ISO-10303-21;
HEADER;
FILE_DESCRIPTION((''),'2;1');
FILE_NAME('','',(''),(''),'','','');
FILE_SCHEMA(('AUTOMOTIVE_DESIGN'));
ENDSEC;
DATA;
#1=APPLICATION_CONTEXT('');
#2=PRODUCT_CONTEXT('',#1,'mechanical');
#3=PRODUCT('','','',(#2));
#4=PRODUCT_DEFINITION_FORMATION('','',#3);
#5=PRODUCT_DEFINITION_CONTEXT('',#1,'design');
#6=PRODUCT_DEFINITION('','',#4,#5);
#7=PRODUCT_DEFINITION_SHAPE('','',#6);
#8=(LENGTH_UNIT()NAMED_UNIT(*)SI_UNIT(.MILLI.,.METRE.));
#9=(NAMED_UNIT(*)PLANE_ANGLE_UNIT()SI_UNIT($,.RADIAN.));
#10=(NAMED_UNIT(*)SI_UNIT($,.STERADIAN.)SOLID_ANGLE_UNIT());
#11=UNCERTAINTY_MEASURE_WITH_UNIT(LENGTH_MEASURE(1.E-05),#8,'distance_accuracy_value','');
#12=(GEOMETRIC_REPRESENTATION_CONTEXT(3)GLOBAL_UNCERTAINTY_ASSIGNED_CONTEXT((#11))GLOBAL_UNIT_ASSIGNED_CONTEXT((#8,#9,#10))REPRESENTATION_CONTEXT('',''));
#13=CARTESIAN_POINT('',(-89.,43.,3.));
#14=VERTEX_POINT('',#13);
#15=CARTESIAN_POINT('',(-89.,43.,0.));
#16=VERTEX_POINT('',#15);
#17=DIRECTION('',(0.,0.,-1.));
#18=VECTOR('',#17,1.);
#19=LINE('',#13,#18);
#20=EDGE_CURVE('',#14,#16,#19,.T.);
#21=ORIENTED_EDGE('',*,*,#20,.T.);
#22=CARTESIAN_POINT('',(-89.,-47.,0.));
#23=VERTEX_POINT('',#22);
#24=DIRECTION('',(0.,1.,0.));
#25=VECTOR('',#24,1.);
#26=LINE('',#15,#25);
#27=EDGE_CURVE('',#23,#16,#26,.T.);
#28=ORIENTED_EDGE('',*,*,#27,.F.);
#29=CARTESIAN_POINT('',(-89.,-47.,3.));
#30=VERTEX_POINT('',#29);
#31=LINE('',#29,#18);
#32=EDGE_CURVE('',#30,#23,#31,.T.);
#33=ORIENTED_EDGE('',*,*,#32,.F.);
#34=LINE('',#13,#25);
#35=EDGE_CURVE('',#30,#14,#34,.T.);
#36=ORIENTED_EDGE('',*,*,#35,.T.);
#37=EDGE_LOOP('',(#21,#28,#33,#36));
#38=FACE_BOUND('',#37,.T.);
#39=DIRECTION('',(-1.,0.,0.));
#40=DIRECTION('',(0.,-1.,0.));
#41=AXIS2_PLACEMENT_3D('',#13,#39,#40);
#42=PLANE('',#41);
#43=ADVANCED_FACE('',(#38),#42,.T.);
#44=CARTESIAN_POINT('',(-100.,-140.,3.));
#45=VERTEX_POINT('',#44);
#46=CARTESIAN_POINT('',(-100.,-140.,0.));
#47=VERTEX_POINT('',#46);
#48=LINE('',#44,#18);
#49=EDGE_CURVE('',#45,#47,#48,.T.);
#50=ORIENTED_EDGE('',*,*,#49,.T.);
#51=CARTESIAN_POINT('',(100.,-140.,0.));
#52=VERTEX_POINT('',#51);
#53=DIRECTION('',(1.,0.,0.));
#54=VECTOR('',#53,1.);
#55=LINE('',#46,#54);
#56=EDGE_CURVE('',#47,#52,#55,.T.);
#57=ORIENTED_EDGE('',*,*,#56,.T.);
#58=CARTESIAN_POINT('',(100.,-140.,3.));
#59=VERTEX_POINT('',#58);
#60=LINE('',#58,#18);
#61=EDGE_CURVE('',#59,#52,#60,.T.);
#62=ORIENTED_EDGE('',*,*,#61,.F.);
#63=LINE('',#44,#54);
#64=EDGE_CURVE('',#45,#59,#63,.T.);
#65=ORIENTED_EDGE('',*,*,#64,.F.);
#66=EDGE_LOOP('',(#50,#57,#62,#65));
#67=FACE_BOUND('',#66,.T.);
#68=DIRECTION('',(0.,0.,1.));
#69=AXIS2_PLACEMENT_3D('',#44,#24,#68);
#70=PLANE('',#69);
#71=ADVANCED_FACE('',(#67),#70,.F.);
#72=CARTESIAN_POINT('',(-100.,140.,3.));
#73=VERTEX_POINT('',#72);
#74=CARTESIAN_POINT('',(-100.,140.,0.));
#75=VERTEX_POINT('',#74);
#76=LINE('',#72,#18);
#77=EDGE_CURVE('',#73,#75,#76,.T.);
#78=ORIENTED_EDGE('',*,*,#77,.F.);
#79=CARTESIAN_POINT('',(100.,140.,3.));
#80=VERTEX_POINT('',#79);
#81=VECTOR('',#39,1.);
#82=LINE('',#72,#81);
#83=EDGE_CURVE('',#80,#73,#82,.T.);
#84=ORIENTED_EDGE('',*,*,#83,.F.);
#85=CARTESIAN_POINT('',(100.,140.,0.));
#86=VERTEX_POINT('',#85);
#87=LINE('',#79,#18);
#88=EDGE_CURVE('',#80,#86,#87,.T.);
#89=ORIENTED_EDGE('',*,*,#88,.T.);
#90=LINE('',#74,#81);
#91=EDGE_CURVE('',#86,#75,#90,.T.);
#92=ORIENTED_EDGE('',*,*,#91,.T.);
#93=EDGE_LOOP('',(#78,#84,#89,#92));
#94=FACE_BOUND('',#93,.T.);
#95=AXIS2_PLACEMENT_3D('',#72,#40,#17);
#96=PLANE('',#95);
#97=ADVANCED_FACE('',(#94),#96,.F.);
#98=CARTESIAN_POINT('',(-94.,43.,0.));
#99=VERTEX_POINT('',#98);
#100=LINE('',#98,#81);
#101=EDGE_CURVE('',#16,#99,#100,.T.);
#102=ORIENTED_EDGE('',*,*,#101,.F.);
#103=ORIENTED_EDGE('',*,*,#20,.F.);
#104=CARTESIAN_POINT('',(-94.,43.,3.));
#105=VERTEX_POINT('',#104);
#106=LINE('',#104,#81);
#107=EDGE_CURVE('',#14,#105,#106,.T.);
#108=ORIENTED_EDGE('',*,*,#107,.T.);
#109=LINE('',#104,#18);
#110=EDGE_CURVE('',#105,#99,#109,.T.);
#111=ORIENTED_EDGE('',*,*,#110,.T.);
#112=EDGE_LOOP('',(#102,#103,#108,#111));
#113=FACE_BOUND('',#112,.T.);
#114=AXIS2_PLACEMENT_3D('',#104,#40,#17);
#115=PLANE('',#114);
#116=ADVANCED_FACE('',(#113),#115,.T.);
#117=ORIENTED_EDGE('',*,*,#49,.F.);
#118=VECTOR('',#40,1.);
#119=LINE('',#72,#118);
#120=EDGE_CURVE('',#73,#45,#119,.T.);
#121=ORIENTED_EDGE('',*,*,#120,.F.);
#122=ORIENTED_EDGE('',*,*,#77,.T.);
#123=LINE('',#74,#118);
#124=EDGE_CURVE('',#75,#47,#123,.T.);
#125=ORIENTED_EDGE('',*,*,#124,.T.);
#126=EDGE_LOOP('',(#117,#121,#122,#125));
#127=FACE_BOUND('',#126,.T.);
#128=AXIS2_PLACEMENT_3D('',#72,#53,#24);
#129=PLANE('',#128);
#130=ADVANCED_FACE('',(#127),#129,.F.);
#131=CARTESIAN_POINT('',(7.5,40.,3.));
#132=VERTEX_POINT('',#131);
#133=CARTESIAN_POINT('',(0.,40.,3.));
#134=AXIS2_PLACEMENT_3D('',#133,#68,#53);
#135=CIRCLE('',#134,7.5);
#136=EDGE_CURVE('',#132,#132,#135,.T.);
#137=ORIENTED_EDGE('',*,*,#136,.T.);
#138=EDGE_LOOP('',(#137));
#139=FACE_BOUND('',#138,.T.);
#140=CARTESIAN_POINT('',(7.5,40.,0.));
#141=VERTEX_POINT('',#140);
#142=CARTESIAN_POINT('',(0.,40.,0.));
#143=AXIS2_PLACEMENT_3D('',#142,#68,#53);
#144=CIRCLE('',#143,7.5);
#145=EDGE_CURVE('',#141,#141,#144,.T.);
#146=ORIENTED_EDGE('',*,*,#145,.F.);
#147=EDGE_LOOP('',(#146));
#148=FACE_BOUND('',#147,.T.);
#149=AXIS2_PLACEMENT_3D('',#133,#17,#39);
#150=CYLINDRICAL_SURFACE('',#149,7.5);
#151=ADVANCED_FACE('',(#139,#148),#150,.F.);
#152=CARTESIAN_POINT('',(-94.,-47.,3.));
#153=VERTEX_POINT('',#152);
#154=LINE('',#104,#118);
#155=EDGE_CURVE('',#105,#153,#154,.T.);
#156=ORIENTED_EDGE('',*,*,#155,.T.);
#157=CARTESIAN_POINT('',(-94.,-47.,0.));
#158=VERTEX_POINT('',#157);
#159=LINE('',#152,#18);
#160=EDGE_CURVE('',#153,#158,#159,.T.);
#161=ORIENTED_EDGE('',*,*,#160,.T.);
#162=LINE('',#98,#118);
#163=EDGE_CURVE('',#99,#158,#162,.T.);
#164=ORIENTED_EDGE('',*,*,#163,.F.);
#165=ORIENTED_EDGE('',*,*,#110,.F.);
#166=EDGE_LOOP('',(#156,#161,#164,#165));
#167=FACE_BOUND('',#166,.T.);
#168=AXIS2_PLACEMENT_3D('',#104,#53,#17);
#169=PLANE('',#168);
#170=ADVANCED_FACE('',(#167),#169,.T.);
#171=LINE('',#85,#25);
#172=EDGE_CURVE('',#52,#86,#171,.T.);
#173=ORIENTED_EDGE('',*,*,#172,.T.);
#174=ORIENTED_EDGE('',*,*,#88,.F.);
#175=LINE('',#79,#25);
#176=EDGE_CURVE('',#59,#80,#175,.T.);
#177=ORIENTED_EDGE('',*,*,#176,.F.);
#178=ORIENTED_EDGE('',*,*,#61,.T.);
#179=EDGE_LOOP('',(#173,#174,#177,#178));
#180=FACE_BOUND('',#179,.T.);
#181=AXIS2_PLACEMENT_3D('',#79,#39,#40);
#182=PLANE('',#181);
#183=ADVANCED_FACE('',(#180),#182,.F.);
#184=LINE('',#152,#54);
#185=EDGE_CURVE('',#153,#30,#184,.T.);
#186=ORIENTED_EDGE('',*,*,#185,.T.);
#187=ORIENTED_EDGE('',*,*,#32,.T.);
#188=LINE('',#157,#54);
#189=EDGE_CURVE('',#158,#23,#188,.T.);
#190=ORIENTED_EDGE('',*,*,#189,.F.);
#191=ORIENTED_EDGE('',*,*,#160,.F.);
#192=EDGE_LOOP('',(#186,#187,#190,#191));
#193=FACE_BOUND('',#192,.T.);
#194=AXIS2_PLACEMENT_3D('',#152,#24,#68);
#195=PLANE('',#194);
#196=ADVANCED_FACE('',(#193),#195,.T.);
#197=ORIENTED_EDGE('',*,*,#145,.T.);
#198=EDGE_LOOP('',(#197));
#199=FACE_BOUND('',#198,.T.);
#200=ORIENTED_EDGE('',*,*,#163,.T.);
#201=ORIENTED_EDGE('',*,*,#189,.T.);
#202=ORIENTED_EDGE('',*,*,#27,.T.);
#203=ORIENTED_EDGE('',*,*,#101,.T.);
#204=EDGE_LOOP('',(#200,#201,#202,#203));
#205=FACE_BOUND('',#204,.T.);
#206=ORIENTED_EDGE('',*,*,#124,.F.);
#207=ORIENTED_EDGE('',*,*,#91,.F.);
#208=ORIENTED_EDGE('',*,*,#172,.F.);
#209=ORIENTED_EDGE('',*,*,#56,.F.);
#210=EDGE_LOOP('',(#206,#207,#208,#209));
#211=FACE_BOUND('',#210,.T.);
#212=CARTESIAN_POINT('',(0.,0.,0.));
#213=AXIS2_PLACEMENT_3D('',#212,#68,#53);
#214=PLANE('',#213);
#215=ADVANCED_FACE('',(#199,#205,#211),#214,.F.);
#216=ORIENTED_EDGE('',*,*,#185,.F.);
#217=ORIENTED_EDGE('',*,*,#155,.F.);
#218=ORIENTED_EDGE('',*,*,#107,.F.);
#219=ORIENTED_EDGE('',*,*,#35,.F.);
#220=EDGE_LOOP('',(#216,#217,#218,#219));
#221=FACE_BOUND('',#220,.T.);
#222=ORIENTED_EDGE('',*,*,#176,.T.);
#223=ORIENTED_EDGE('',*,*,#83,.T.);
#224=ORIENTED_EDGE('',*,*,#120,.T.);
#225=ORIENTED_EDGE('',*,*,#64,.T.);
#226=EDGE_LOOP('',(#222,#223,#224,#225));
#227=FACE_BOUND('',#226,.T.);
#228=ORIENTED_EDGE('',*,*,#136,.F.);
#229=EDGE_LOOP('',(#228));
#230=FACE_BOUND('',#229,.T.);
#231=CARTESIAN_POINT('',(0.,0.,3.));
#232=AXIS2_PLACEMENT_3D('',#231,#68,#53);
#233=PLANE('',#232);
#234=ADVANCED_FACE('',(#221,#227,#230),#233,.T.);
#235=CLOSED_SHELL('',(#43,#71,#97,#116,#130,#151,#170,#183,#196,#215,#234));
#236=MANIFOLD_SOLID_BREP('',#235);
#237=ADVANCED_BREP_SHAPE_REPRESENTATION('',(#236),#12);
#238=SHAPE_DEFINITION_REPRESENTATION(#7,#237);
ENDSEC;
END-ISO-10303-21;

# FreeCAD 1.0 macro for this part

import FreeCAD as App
import Part
import Sketcher

V = App.Vector
Q = App.Units.Quantity


def add_polygon(sketch, points):
    """Adds a closed chain of lines whose ends are joined by coincident constraints."""
    first, n = sketch.GeometryCount, len(points)
    for a, b in zip(points, points[1:] + points[:1]):
        sketch.addGeometry(Part.LineSegment(App.Vector(*a, 0), App.Vector(*b, 0)), False)
    for i in range(n):
        sketch.addConstraint(Sketcher.Constraint("Coincident", first + i, 2, first + (i + 1) % n, 1))

doc = App.newDocument("Part")
body = doc.addObject("PartDesign::Body", "Body")

# Sketch on XY plane
sketch1 = doc.addObject("Sketcher::SketchObject", "Sketch")
body.addObject(sketch1)
sketch1.AttachmentSupport = (doc.XY_Plane, [""])
sketch1.MapMode = "FlatFace"
add_polygon(sketch1, [(-100, 140), (-100, -140), (100, -140), (100, 140)])  # lines 0-3
add_polygon(sketch1, [(-89, -47), (-94, -47), (-94, 43), (-89, 43)])  # lines 4-7
sketch1.addGeometry(Part.Circle(V(0, 40, 0), V(0, 0, 1), 8), False)  # 8
sketch1.addConstraint(Sketcher.Constraint("Vertical", 0))
sketch1.addConstraint(Sketcher.Constraint("Horizontal", 1))
sketch1.addConstraint(Sketcher.Constraint("Vertical", 2))
sketch1.addConstraint(Sketcher.Constraint("Horizontal", 3))
sketch1.addConstraint(Sketcher.Constraint("Horizontal", 4))
sketch1.addConstraint(Sketcher.Constraint("Vertical", 5))
sketch1.addConstraint(Sketcher.Constraint("Horizontal", 6))
sketch1.addConstraint(Sketcher.Constraint("Vertical", 7))
sketch1.addConstraint(Sketcher.Constraint("Symmetric", 0, 2, 2, 2, -1, 1))
sketch1.addConstraint(Sketcher.Constraint("PointOnObject", 8, 3, -2))
sketch1.addConstraint(Sketcher.Constraint("Diameter", 8, Q("15 mm")))
sketch1.addConstraint(Sketcher.Constraint("DistanceX", 1, 1, 1, 2, Q("200 mm")))
sketch1.addConstraint(Sketcher.Constraint("DistanceX", 4, 2, 4, 1, Q("5 mm")))
sketch1.addConstraint(Sketcher.Constraint("DistanceY", 0, 2, 0, 1, Q("280 mm")))
sketch1.addConstraint(Sketcher.Constraint("DistanceY", 5, 1, 5, 2, Q("90 mm")))
sketch1.addConstraint(Sketcher.Constraint("DistanceY", -1, 1, 8, 3, Q("40 mm")))
sketch1.addConstraint(Sketcher.Constraint("DistanceX", 4, 2, -1, 1, Q("94 mm")))
sketch1.addConstraint(Sketcher.Constraint("DistanceY", 4, 2, -1, 1, Q("47 mm")))
pad1 = doc.addObject("PartDesign::Pad", "Pad")
body.addObject(pad1)
pad1.Profile = sketch1
pad1.Length = 3

doc.recompute()
